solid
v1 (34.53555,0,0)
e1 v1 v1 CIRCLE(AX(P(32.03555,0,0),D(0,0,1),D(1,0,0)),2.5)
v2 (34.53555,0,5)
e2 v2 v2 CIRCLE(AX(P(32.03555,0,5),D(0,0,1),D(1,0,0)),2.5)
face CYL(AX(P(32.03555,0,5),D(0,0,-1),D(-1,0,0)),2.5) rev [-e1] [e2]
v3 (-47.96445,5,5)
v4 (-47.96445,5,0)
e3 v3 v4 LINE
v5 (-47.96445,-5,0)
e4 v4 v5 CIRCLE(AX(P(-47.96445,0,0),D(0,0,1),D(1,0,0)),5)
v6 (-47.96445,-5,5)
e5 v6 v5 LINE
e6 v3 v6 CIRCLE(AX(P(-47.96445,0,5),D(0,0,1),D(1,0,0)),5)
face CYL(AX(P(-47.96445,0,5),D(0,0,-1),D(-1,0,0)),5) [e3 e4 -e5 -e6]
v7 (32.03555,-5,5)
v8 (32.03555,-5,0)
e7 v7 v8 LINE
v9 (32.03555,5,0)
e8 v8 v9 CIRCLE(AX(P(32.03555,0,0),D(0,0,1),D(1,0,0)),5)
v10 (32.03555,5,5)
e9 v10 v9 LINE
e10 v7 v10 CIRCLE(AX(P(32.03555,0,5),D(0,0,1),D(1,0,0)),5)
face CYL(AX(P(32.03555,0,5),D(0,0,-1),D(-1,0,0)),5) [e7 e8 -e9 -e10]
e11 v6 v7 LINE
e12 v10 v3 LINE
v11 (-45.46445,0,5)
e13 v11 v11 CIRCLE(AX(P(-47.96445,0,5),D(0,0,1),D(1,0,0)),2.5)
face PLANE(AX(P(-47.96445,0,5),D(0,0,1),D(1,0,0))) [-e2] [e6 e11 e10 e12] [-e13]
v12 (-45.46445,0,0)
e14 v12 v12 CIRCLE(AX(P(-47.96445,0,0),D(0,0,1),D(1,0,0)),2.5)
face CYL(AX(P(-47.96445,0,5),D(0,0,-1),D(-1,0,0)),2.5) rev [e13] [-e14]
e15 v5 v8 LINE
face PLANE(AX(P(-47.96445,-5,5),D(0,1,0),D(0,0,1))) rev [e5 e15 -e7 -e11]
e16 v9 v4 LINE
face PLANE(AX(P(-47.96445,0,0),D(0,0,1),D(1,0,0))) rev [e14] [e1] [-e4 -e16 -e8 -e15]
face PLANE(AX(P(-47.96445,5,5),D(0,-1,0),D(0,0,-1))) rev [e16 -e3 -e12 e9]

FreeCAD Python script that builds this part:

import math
import FreeCAD as App
import Part
import Sketcher

doc = App.newDocument("Part")
params = doc.addObject("Spreadsheet::Sheet", "Params")
for row, (alias, value) in enumerate([
    ("sketch1_diameter", "5 mm"),
    ("sketch1_radius", "5 mm"),
    ("sketch1_width", "80 mm"),
    ("pad1_length", "5 mm"),
], start=1):
    params.set(f"A{row}", alias)
    params.set(f"B{row}", "=" + value)
    params.setAlias(f"B{row}", alias)

body = doc.addObject("PartDesign::Body", "Body")

# Sketch on XY plane
sketch1 = body.newObject("Sketcher::SketchObject", "Sketch")
sketch1.AttachmentSupport = (doc.getObject("XY_Plane"), [""])
sketch1.MapMode = "FlatFace"
sketch1.addGeometry(Part.LineSegment(App.Vector(32.03555, 5, 0), App.Vector(-47.96445, 5, 0)), False)
sketch1.addGeometry(Part.ArcOfCircle(Part.Circle(App.Vector(-47.96445, 0, 0), App.Vector(0, 0, 1), 5), math.radians(90), math.radians(270)), False)
sketch1.addGeometry(Part.LineSegment(App.Vector(-47.96445, -5, 0), App.Vector(32.03555, -5, 0)), False)
sketch1.addGeometry(Part.ArcOfCircle(Part.Circle(App.Vector(32.03555, 0, 0), App.Vector(0, 0, 1), 5), math.radians(-90), math.radians(90)), False)
sketch1.addGeometry(Part.Circle(App.Vector(32.03555, 0, 0), App.Vector(0, 0, 1), 2.5), False)
sketch1.addGeometry(Part.Circle(App.Vector(-47.96445, 0, 0), App.Vector(0, 0, 1), 2.5), False)
sketch1.addConstraint(Sketcher.Constraint("Tangent", 0, 2, 1, 1))
sketch1.addConstraint(Sketcher.Constraint("Tangent", 1, 2, 2, 1))
sketch1.addConstraint(Sketcher.Constraint("Tangent", 2, 2, 3, 1))
sketch1.addConstraint(Sketcher.Constraint("Tangent", 3, 2, 0, 1))
sketch1.addConstraint(Sketcher.Constraint("Horizontal", 0))
sketch1.addConstraint(Sketcher.Constraint("Horizontal", 2))
sketch1.addConstraint(Sketcher.Constraint("Coincident", 4, 3, 3, 3))
sketch1.addConstraint(Sketcher.Constraint("Coincident", 5, 3, 1, 3))
sketch1.addConstraint(Sketcher.Constraint("Equal", 4, 5))
sketch1.addConstraint(Sketcher.Constraint("PointOnObject", 1, 3, -1))
sketch1.addConstraint(Sketcher.Constraint("Diameter", 4, 5.0))
sketch1.addConstraint(Sketcher.Constraint("Radius", 1, 5.0))
sketch1.addConstraint(Sketcher.Constraint("DistanceX", 0, 2, 0, 1, 80.0))
sketch1.addConstraint(Sketcher.Constraint("DistanceX", 1, 3, -1, 1, 47.96445))
sketch1.setExpression("Constraints[10]", "Params.sketch1_diameter")
sketch1.setExpression("Constraints[11]", "Params.sketch1_radius")
sketch1.setExpression("Constraints[12]", "Params.sketch1_width")
pad1 = body.newObject("PartDesign::Pad", "Pad")
pad1.Profile = sketch1
pad1.setExpression("Length", "Params.pad1_length")

doc.recompute()
